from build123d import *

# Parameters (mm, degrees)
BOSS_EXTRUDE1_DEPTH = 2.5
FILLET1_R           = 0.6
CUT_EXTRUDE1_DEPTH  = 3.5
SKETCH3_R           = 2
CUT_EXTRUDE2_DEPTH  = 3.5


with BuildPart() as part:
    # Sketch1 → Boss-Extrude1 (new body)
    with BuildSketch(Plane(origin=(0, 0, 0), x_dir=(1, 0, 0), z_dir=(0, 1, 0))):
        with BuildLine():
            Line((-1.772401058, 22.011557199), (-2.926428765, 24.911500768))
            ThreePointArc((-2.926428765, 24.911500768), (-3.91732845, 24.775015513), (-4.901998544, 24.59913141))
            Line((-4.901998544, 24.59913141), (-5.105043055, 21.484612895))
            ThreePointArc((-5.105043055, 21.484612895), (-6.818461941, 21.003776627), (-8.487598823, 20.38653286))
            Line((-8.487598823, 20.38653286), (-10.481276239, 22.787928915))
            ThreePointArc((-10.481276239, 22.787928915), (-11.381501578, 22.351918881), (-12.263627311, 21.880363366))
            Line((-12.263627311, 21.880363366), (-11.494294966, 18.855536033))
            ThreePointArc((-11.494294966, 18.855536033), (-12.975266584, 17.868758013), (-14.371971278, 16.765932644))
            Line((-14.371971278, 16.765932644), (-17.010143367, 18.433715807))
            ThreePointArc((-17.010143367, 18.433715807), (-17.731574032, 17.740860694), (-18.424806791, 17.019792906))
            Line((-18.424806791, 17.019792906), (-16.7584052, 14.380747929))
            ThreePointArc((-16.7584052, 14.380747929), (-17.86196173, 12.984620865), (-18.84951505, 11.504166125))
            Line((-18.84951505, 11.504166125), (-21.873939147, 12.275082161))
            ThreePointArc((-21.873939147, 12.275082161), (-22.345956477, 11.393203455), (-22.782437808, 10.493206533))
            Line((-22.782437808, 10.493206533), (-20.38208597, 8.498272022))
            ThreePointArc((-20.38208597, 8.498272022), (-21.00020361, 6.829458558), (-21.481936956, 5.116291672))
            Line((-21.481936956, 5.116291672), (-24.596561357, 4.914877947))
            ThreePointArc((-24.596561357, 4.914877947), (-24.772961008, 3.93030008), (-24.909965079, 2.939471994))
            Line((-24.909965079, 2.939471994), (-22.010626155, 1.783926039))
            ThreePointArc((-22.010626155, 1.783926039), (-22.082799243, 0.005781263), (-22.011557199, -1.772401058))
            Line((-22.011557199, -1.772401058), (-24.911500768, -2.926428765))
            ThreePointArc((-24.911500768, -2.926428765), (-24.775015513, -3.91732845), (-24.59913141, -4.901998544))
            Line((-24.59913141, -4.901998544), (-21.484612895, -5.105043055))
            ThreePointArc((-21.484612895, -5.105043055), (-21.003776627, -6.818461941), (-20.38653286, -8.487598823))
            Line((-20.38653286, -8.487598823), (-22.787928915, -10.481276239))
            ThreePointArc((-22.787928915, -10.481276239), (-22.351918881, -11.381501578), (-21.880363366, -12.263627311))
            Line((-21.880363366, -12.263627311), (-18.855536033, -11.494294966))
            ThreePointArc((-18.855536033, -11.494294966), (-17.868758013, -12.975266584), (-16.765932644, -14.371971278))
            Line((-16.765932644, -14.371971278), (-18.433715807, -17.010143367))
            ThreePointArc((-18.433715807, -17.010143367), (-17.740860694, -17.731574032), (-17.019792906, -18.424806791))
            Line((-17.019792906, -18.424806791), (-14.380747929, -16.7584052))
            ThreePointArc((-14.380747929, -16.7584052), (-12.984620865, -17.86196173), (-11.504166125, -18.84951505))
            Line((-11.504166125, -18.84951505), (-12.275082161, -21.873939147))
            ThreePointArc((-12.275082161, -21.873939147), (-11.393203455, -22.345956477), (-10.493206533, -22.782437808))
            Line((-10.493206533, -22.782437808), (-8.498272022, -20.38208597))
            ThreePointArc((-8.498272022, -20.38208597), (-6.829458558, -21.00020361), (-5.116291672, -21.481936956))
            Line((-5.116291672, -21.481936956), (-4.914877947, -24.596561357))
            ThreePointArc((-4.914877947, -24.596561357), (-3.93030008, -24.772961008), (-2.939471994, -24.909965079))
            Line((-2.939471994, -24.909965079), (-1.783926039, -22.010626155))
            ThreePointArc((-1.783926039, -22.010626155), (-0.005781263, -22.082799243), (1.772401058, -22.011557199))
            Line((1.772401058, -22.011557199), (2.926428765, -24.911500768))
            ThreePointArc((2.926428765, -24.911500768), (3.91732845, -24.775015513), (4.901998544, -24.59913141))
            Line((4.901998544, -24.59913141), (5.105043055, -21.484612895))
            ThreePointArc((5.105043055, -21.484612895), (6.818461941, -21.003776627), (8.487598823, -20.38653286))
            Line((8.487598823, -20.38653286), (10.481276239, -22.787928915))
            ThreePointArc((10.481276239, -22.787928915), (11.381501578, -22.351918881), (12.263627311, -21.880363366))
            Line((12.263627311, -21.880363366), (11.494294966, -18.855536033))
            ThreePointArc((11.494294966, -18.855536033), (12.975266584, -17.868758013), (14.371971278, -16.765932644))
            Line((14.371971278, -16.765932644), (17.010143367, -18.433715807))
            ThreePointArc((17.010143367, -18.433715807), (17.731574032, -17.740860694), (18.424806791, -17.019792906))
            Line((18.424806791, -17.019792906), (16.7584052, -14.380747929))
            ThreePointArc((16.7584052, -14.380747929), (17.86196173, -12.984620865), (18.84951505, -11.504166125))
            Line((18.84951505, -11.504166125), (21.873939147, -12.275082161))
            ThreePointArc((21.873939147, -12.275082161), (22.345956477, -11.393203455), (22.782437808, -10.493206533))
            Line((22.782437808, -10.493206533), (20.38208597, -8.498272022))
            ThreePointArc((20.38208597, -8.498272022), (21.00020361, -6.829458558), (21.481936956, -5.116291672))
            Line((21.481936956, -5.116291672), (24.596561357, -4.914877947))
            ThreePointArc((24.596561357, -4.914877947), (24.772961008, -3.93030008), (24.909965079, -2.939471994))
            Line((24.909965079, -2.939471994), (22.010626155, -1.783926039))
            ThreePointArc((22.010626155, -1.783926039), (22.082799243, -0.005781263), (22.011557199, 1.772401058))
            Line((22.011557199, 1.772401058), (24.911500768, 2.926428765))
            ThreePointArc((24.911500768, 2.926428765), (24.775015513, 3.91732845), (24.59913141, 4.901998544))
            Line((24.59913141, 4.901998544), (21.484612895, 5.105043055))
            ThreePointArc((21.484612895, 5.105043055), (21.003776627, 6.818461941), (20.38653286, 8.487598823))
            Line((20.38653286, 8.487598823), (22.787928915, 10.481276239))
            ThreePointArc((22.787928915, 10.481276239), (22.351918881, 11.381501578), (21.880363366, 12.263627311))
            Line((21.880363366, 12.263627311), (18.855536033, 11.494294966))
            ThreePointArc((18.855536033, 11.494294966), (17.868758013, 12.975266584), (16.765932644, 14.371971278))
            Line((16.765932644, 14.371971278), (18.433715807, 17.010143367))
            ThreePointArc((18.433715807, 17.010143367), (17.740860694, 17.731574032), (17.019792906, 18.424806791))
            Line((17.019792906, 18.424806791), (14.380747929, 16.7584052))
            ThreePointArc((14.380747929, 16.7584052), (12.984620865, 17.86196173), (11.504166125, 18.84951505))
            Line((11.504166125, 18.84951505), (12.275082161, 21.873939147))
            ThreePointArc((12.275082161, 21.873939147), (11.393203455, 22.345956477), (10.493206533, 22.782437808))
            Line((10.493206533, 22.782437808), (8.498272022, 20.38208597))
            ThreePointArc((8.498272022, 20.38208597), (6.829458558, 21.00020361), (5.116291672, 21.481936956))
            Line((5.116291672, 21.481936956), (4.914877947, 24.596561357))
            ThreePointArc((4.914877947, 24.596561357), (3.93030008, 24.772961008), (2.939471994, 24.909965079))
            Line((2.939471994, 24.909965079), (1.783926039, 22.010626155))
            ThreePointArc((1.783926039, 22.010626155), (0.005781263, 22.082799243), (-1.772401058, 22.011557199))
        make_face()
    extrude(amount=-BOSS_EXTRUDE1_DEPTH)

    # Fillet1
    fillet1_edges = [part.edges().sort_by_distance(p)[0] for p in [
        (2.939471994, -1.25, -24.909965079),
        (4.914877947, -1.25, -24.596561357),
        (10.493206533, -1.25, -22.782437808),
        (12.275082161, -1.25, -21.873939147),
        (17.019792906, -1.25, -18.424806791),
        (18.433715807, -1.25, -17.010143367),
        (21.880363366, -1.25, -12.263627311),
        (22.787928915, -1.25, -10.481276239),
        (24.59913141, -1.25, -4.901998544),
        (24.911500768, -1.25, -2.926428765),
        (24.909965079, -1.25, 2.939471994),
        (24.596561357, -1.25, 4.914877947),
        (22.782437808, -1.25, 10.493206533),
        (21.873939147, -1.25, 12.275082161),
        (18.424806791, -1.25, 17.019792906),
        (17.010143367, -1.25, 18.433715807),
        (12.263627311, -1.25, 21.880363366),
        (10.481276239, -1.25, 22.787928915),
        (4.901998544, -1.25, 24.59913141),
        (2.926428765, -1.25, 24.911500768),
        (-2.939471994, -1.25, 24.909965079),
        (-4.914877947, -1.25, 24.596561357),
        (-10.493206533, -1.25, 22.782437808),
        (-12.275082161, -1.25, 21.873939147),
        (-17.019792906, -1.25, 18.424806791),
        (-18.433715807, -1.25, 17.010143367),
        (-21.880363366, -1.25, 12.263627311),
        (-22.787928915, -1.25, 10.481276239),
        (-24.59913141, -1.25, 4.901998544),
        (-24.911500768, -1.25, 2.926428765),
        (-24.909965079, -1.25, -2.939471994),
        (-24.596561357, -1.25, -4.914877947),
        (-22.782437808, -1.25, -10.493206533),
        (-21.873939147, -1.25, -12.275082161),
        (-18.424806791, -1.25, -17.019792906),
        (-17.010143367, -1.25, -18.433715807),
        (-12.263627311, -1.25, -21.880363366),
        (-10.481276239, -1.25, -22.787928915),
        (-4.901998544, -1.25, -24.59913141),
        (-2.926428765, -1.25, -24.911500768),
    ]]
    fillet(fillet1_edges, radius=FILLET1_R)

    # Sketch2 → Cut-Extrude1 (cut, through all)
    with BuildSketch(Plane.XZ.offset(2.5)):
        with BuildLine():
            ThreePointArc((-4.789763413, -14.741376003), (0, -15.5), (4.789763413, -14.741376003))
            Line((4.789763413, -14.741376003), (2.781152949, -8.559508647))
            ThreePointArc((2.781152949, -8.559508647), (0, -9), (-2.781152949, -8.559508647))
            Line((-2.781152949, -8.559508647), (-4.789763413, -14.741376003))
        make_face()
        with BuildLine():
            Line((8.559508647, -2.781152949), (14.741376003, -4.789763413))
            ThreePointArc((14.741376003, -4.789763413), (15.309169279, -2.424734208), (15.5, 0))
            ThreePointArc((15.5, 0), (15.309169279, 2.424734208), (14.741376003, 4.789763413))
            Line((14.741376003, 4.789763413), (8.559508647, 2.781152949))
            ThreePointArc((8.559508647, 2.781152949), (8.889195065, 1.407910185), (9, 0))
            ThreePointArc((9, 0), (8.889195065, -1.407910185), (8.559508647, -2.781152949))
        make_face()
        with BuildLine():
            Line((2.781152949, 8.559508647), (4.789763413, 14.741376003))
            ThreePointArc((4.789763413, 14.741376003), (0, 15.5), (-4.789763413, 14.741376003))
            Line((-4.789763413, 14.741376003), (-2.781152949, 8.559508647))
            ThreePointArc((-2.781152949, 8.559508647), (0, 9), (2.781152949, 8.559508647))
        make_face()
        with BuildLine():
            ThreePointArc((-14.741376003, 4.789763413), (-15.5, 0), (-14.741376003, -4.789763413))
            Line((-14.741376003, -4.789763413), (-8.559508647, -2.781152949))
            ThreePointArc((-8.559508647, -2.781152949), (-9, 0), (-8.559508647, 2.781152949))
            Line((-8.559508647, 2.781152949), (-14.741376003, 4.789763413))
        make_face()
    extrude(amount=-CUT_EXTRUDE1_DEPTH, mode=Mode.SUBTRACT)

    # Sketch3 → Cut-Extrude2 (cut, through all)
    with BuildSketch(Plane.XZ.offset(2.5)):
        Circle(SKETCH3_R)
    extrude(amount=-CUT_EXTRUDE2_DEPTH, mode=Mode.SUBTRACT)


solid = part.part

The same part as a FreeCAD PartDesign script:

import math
import FreeCAD as App
import Part
import Sketcher
Q = App.Units.Quantity


def edges_at(feature, points):
    """Names of the edges that pass closest to the given points."""
    edges = feature.Shape.Edges
    near = lambda p: min(range(len(edges)), key=lambda i: edges[i].distToShape(Part.Vertex(*p))[0])
    return sorted({f"Edge{near(p) + 1}" for p in points})

doc = App.newDocument("Part")
body = doc.addObject("PartDesign::Body", "Body")

# Sketch on XZ plane
sketch1 = body.newObject("Sketcher::SketchObject", "Sketch")
sketch1.AttachmentSupport = (doc.getObject("XZ_Plane"), [""])
sketch1.MapMode = "FlatFace"
sketch1.addGeometry([
    Part.LineSegment(App.Vector(-1.772401, -22.011557, 0), App.Vector(-2.926429, -24.911501, 0)),  # 0
    Part.ArcOfCircle(Part.Circle(App.Vector(0, 0, 0), App.Vector(0, 0, 1), 25.0828), math.radians(-101.27), math.radians(-96.7)),  # 1
    Part.LineSegment(App.Vector(-4.901999, -24.599131, 0), App.Vector(-5.105043, -21.484613, 0)),  # 2
    Part.ArcOfCircle(Part.Circle(App.Vector(0, 0, 0), App.Vector(0, 0, 1), 22.0828), math.radians(-112.603603), math.radians(-103.366397)),  # 3
    Part.LineSegment(App.Vector(-8.487599, -20.386533, 0), App.Vector(-10.481276, -22.787929, 0)),  # 4
    Part.ArcOfCircle(Part.Circle(App.Vector(0, 0, 0), App.Vector(0, 0, 1), 25.0828), math.radians(-119.27), math.radians(-114.7)),  # 5
    Part.LineSegment(App.Vector(-12.263627, -21.880363, 0), App.Vector(-11.494295, -18.855536, 0)),  # 6
    Part.ArcOfCircle(Part.Circle(App.Vector(0, 0, 0), App.Vector(0, 0, 1), 22.0828), math.radians(-130.603603), math.radians(-121.366397)),  # 7
    Part.LineSegment(App.Vector(-14.371971, -16.765933, 0), App.Vector(-17.010143, -18.433716, 0)),  # 8
    Part.ArcOfCircle(Part.Circle(App.Vector(0, 0, 0), App.Vector(0, 0, 1), 25.0828), math.radians(-137.27), math.radians(-132.7)),  # 9
    Part.LineSegment(App.Vector(-18.424807, -17.019793, 0), App.Vector(-16.758405, -14.380748, 0)),  # 10
    Part.ArcOfCircle(Part.Circle(App.Vector(0, 0, 0), App.Vector(0, 0, 1), 22.0828), math.radians(-148.603603), math.radians(-139.366397)),  # 11
    Part.LineSegment(App.Vector(-18.849515, -11.504166, 0), App.Vector(-21.873939, -12.275082, 0)),  # 12
    Part.ArcOfCircle(Part.Circle(App.Vector(0, 0, 0), App.Vector(0, 0, 1), 25.0828), math.radians(-155.27), math.radians(-150.7)),  # 13
    Part.LineSegment(App.Vector(-22.782438, -10.493207, 0), App.Vector(-20.382086, -8.498272, 0)),  # 14
    Part.ArcOfCircle(Part.Circle(App.Vector(0, 0, 0), App.Vector(0, 0, 1), 22.0828), math.radians(-166.603603), math.radians(-157.366397)),  # 15
    Part.LineSegment(App.Vector(-21.481937, -5.116292, 0), App.Vector(-24.596561, -4.914878, 0)),  # 16
    Part.ArcOfCircle(Part.Circle(App.Vector(0, 0, 0), App.Vector(0, 0, 1), 25.0828), math.radians(-173.27), math.radians(-168.7)),  # 17
    Part.LineSegment(App.Vector(-24.909965, -2.939472, 0), App.Vector(-22.010626, -1.783926, 0)),  # 18
    Part.ArcOfCircle(Part.Circle(App.Vector(0, 0, 0), App.Vector(0, 0, 1), 22.0828), math.radians(175.396397), math.radians(184.633603)),  # 19
    Part.LineSegment(App.Vector(-22.011557, 1.772401, 0), App.Vector(-24.911501, 2.926429, 0)),  # 20
    Part.ArcOfCircle(Part.Circle(App.Vector(0, 0, 0), App.Vector(0, 0, 1), 25.0828), math.radians(168.73), math.radians(173.3)),  # 21
    Part.LineSegment(App.Vector(-24.599131, 4.901999, 0), App.Vector(-21.484613, 5.105043, 0)),  # 22
    Part.ArcOfCircle(Part.Circle(App.Vector(0, 0, 0), App.Vector(0, 0, 1), 22.0828), math.radians(157.396397), math.radians(166.633603)),  # 23
    Part.LineSegment(App.Vector(-20.386533, 8.487599, 0), App.Vector(-22.787929, 10.481276, 0)),  # 24
    Part.ArcOfCircle(Part.Circle(App.Vector(0, 0, 0), App.Vector(0, 0, 1), 25.0828), math.radians(150.73), math.radians(155.3)),  # 25
    Part.LineSegment(App.Vector(-21.880363, 12.263627, 0), App.Vector(-18.855536, 11.494295, 0)),  # 26
    Part.ArcOfCircle(Part.Circle(App.Vector(0, 0, 0), App.Vector(0, 0, 1), 22.0828), math.radians(139.396397), math.radians(148.633603)),  # 27
    Part.LineSegment(App.Vector(-16.765933, 14.371971, 0), App.Vector(-18.433716, 17.010143, 0)),  # 28
    Part.ArcOfCircle(Part.Circle(App.Vector(0, 0, 0), App.Vector(0, 0, 1), 25.0828), math.radians(132.73), math.radians(137.3)),  # 29
    Part.LineSegment(App.Vector(-17.019793, 18.424807, 0), App.Vector(-14.380748, 16.758405, 0)),  # 30
    Part.ArcOfCircle(Part.Circle(App.Vector(0, 0, 0), App.Vector(0, 0, 1), 22.0828), math.radians(121.396397), math.radians(130.633603)),  # 31
    Part.LineSegment(App.Vector(-11.504166, 18.849515, 0), App.Vector(-12.275082, 21.873939, 0)),  # 32
    Part.ArcOfCircle(Part.Circle(App.Vector(0, 0, 0), App.Vector(0, 0, 1), 25.0828), math.radians(114.73), math.radians(119.3)),  # 33
    Part.LineSegment(App.Vector(-10.493207, 22.782438, 0), App.Vector(-8.498272, 20.382086, 0)),  # 34
    Part.ArcOfCircle(Part.Circle(App.Vector(0, 0, 0), App.Vector(0, 0, 1), 22.0828), math.radians(103.396397), math.radians(112.633603)),  # 35
    Part.LineSegment(App.Vector(-5.116292, 21.481937, 0), App.Vector(-4.914878, 24.596561, 0)),  # 36
    Part.ArcOfCircle(Part.Circle(App.Vector(0, 0, 0), App.Vector(0, 0, 1), 25.0828), math.radians(96.73), math.radians(101.3)),  # 37
    Part.LineSegment(App.Vector(-2.939472, 24.909965, 0), App.Vector(-1.783926, 22.010626, 0)),  # 38
    Part.ArcOfCircle(Part.Circle(App.Vector(0, 0, 0), App.Vector(0, 0, 1), 22.0828), math.radians(85.396397), math.radians(94.633603)),  # 39
    Part.LineSegment(App.Vector(1.772401, 22.011557, 0), App.Vector(2.926429, 24.911501, 0)),  # 40
    Part.ArcOfCircle(Part.Circle(App.Vector(0, 0, 0), App.Vector(0, 0, 1), 25.0828), math.radians(78.73), math.radians(83.3)),  # 41
    Part.LineSegment(App.Vector(4.901999, 24.599131, 0), App.Vector(5.105043, 21.484613, 0)),  # 42
    Part.ArcOfCircle(Part.Circle(App.Vector(0, 0, 0), App.Vector(0, 0, 1), 22.0828), math.radians(67.396397), math.radians(76.633603)),  # 43
    Part.LineSegment(App.Vector(8.487599, 20.386533, 0), App.Vector(10.481276, 22.787929, 0)),  # 44
    Part.ArcOfCircle(Part.Circle(App.Vector(0, 0, 0), App.Vector(0, 0, 1), 25.0828), math.radians(60.73), math.radians(65.3)),  # 45
    Part.LineSegment(App.Vector(12.263627, 21.880363, 0), App.Vector(11.494295, 18.855536, 0)),  # 46
    Part.ArcOfCircle(Part.Circle(App.Vector(0, 0, 0), App.Vector(0, 0, 1), 22.0828), math.radians(49.396397), math.radians(58.633603)),  # 47
    Part.LineSegment(App.Vector(14.371971, 16.765933, 0), App.Vector(17.010143, 18.433716, 0)),  # 48
    Part.ArcOfCircle(Part.Circle(App.Vector(0, 0, 0), App.Vector(0, 0, 1), 25.0828), math.radians(42.73), math.radians(47.3)),  # 49
    Part.LineSegment(App.Vector(18.424807, 17.019793, 0), App.Vector(16.758405, 14.380748, 0)),  # 50
    Part.ArcOfCircle(Part.Circle(App.Vector(0, 0, 0), App.Vector(0, 0, 1), 22.0828), math.radians(31.396397), math.radians(40.633603)),  # 51
    Part.LineSegment(App.Vector(18.849515, 11.504166, 0), App.Vector(21.873939, 12.275082, 0)),  # 52
    Part.ArcOfCircle(Part.Circle(App.Vector(0, 0, 0), App.Vector(0, 0, 1), 25.0828), math.radians(24.73), math.radians(29.3)),  # 53
    Part.LineSegment(App.Vector(22.782438, 10.493207, 0), App.Vector(20.382086, 8.498272, 0)),  # 54
    Part.ArcOfCircle(Part.Circle(App.Vector(0, 0, 0), App.Vector(0, 0, 1), 22.0828), math.radians(13.396397), math.radians(22.633603)),  # 55
    Part.LineSegment(App.Vector(21.481937, 5.116292, 0), App.Vector(24.596561, 4.914878, 0)),  # 56
    Part.ArcOfCircle(Part.Circle(App.Vector(0, 0, 0), App.Vector(0, 0, 1), 25.0828), math.radians(6.73), math.radians(11.3)),  # 57
    Part.LineSegment(App.Vector(24.909965, 2.939472, 0), App.Vector(22.010626, 1.783926, 0)),  # 58
    Part.ArcOfCircle(Part.Circle(App.Vector(0, 0, 0), App.Vector(0, 0, 1), 22.0828), math.radians(-4.603603), math.radians(4.633603)),  # 59
    Part.LineSegment(App.Vector(22.011557, -1.772401, 0), App.Vector(24.911501, -2.926429, 0)),  # 60
    Part.ArcOfCircle(Part.Circle(App.Vector(0, 0, 0), App.Vector(0, 0, 1), 25.0828), math.radians(-11.27), math.radians(-6.7)),  # 61
    Part.LineSegment(App.Vector(24.599131, -4.901999, 0), App.Vector(21.484613, -5.105043, 0)),  # 62
    Part.ArcOfCircle(Part.Circle(App.Vector(0, 0, 0), App.Vector(0, 0, 1), 22.0828), math.radians(-22.603603), math.radians(-13.366397)),  # 63
    Part.LineSegment(App.Vector(20.386533, -8.487599, 0), App.Vector(22.787929, -10.481276, 0)),  # 64
    Part.ArcOfCircle(Part.Circle(App.Vector(0, 0, 0), App.Vector(0, 0, 1), 25.0828), math.radians(-29.27), math.radians(-24.7)),  # 65
    Part.LineSegment(App.Vector(21.880363, -12.263627, 0), App.Vector(18.855536, -11.494295, 0)),  # 66
    Part.ArcOfCircle(Part.Circle(App.Vector(0, 0, 0), App.Vector(0, 0, 1), 22.0828), math.radians(-40.603603), math.radians(-31.366397)),  # 67
    Part.LineSegment(App.Vector(16.765933, -14.371971, 0), App.Vector(18.433716, -17.010143, 0)),  # 68
    Part.ArcOfCircle(Part.Circle(App.Vector(0, 0, 0), App.Vector(0, 0, 1), 25.0828), math.radians(-47.27), math.radians(-42.7)),  # 69
    Part.LineSegment(App.Vector(17.019793, -18.424807, 0), App.Vector(14.380748, -16.758405, 0)),  # 70
    Part.ArcOfCircle(Part.Circle(App.Vector(0, 0, 0), App.Vector(0, 0, 1), 22.0828), math.radians(-58.603603), math.radians(-49.366397)),  # 71
    Part.LineSegment(App.Vector(11.504166, -18.849515, 0), App.Vector(12.275082, -21.873939, 0)),  # 72
    Part.ArcOfCircle(Part.Circle(App.Vector(0, 0, 0), App.Vector(0, 0, 1), 25.0828), math.radians(-65.27), math.radians(-60.7)),  # 73
    Part.LineSegment(App.Vector(10.493207, -22.782438, 0), App.Vector(8.498272, -20.382086, 0)),  # 74
    Part.ArcOfCircle(Part.Circle(App.Vector(0, 0, 0), App.Vector(0, 0, 1), 22.0828), math.radians(-76.603603), math.radians(-67.366397)),  # 75
    Part.LineSegment(App.Vector(5.116292, -21.481937, 0), App.Vector(4.914878, -24.596561, 0)),  # 76
    Part.ArcOfCircle(Part.Circle(App.Vector(0, 0, 0), App.Vector(0, 0, 1), 25.0828), math.radians(-83.27), math.radians(-78.7)),  # 77
    Part.LineSegment(App.Vector(2.939472, -24.909965, 0), App.Vector(1.783926, -22.010626, 0)),  # 78
    Part.ArcOfCircle(Part.Circle(App.Vector(0, 0, 0), App.Vector(0, 0, 1), 22.0828), math.radians(-94.603603), math.radians(-85.366397)),  # 79
], False)
sketch1.addConstraint([
    Sketcher.Constraint("Coincident", 0, 2, 1, 2),
    Sketcher.Constraint("Coincident", 1, 1, 2, 1),
    Sketcher.Constraint("Coincident", 2, 2, 3, 2),
    Sketcher.Constraint("Coincident", 3, 1, 4, 1),
    Sketcher.Constraint("Coincident", 4, 2, 5, 2),
    Sketcher.Constraint("Coincident", 5, 1, 6, 1),
    Sketcher.Constraint("Coincident", 6, 2, 7, 2),
    Sketcher.Constraint("Coincident", 7, 1, 8, 1),
    Sketcher.Constraint("Coincident", 8, 2, 9, 2),
    Sketcher.Constraint("Coincident", 9, 1, 10, 1),
    Sketcher.Constraint("Coincident", 10, 2, 11, 2),
    Sketcher.Constraint("Coincident", 11, 1, 12, 1),
    Sketcher.Constraint("Coincident", 12, 2, 13, 2),
    Sketcher.Constraint("Coincident", 13, 1, 14, 1),
    Sketcher.Constraint("Coincident", 14, 2, 15, 2),
    Sketcher.Constraint("Coincident", 15, 1, 16, 1),
    Sketcher.Constraint("Coincident", 16, 2, 17, 2),
    Sketcher.Constraint("Coincident", 17, 1, 18, 1),
    Sketcher.Constraint("Coincident", 18, 2, 19, 2),
    Sketcher.Constraint("Coincident", 19, 1, 20, 1),
    Sketcher.Constraint("Coincident", 20, 2, 21, 2),
    Sketcher.Constraint("Coincident", 21, 1, 22, 1),
    Sketcher.Constraint("Coincident", 22, 2, 23, 2),
    Sketcher.Constraint("Coincident", 23, 1, 24, 1),
    Sketcher.Constraint("Coincident", 24, 2, 25, 2),
    Sketcher.Constraint("Coincident", 25, 1, 26, 1),
    Sketcher.Constraint("Coincident", 26, 2, 27, 2),
    Sketcher.Constraint("Coincident", 27, 1, 28, 1),
    Sketcher.Constraint("Coincident", 28, 2, 29, 2),
    Sketcher.Constraint("Coincident", 29, 1, 30, 1),
    Sketcher.Constraint("Coincident", 30, 2, 31, 2),
    Sketcher.Constraint("Coincident", 31, 1, 32, 1),
    Sketcher.Constraint("Coincident", 32, 2, 33, 2),
    Sketcher.Constraint("Coincident", 33, 1, 34, 1),
    Sketcher.Constraint("Coincident", 34, 2, 35, 2),
    Sketcher.Constraint("Coincident", 35, 1, 36, 1),
    Sketcher.Constraint("Coincident", 36, 2, 37, 2),
    Sketcher.Constraint("Coincident", 37, 1, 38, 1),
    Sketcher.Constraint("Coincident", 38, 2, 39, 2),
    Sketcher.Constraint("Coincident", 39, 1, 40, 1),
    Sketcher.Constraint("Coincident", 40, 2, 41, 2),
    Sketcher.Constraint("Coincident", 41, 1, 42, 1),
    Sketcher.Constraint("Coincident", 42, 2, 43, 2),
    Sketcher.Constraint("Coincident", 43, 1, 44, 1),
    Sketcher.Constraint("Coincident", 44, 2, 45, 2),
    Sketcher.Constraint("Coincident", 45, 1, 46, 1),
    Sketcher.Constraint("Coincident", 46, 2, 47, 2),
    Sketcher.Constraint("Coincident", 47, 1, 48, 1),
    Sketcher.Constraint("Coincident", 48, 2, 49, 2),
    Sketcher.Constraint("Coincident", 49, 1, 50, 1),
    Sketcher.Constraint("Coincident", 50, 2, 51, 2),
    Sketcher.Constraint("Coincident", 51, 1, 52, 1),
    Sketcher.Constraint("Coincident", 52, 2, 53, 2),
    Sketcher.Constraint("Coincident", 53, 1, 54, 1),
    Sketcher.Constraint("Coincident", 54, 2, 55, 2),
    Sketcher.Constraint("Coincident", 55, 1, 56, 1),
    Sketcher.Constraint("Coincident", 56, 2, 57, 2),
    Sketcher.Constraint("Coincident", 57, 1, 58, 1),
    Sketcher.Constraint("Coincident", 58, 2, 59, 2),
    Sketcher.Constraint("Coincident", 59, 1, 60, 1),
    Sketcher.Constraint("Coincident", 60, 2, 61, 2),
    Sketcher.Constraint("Coincident", 61, 1, 62, 1),
    Sketcher.Constraint("Coincident", 62, 2, 63, 2),
    Sketcher.Constraint("Coincident", 63, 1, 64, 1),
    Sketcher.Constraint("Coincident", 64, 2, 65, 2),
    Sketcher.Constraint("Coincident", 65, 1, 66, 1),
    Sketcher.Constraint("Coincident", 66, 2, 67, 2),
    Sketcher.Constraint("Coincident", 67, 1, 68, 1),
    Sketcher.Constraint("Coincident", 68, 2, 69, 2),
    Sketcher.Constraint("Coincident", 69, 1, 70, 1),
    Sketcher.Constraint("Coincident", 70, 2, 71, 2),
    Sketcher.Constraint("Coincident", 71, 1, 72, 1),
    Sketcher.Constraint("Coincident", 72, 2, 73, 2),
    Sketcher.Constraint("Coincident", 73, 1, 74, 1),
    Sketcher.Constraint("Coincident", 74, 2, 75, 2),
    Sketcher.Constraint("Coincident", 75, 1, 76, 1),
    Sketcher.Constraint("Coincident", 76, 2, 77, 2),
    Sketcher.Constraint("Coincident", 77, 1, 78, 1),
    Sketcher.Constraint("Coincident", 78, 2, 79, 2),
    Sketcher.Constraint("Coincident", 79, 1, 0, 1),
    Sketcher.Constraint("Coincident", 1, 3, -1, 1),
    Sketcher.Constraint("Coincident", 3, 3, -1, 1),
    Sketcher.Constraint("Coincident", 5, 3, -1, 1),
    Sketcher.Constraint("Coincident", 7, 3, -1, 1),
    Sketcher.Constraint("Coincident", 9, 3, -1, 1),
    Sketcher.Constraint("Coincident", 11, 3, -1, 1),
    Sketcher.Constraint("Coincident", 13, 3, -1, 1),
    Sketcher.Constraint("Coincident", 15, 3, -1, 1),
    Sketcher.Constraint("Coincident", 17, 3, -1, 1),
    Sketcher.Constraint("Coincident", 19, 3, -1, 1),
    Sketcher.Constraint("Coincident", 21, 3, -1, 1),
    Sketcher.Constraint("Coincident", 23, 3, -1, 1),
    Sketcher.Constraint("Coincident", 25, 3, -1, 1),
    Sketcher.Constraint("Coincident", 27, 3, -1, 1),
    Sketcher.Constraint("Coincident", 29, 3, -1, 1),
    Sketcher.Constraint("Coincident", 31, 3, -1, 1),
    Sketcher.Constraint("Coincident", 33, 3, -1, 1),
    Sketcher.Constraint("Coincident", 35, 3, -1, 1),
    Sketcher.Constraint("Coincident", 37, 3, -1, 1),
    Sketcher.Constraint("Coincident", 39, 3, -1, 1),
    Sketcher.Constraint("Coincident", 41, 3, -1, 1),
    Sketcher.Constraint("Coincident", 43, 3, -1, 1),
    Sketcher.Constraint("Coincident", 45, 3, -1, 1),
    Sketcher.Constraint("Coincident", 47, 3, -1, 1),
    Sketcher.Constraint("Coincident", 49, 3, -1, 1),
    Sketcher.Constraint("Coincident", 51, 3, -1, 1),
    Sketcher.Constraint("Coincident", 53, 3, -1, 1),
    Sketcher.Constraint("Coincident", 55, 3, -1, 1),
    Sketcher.Constraint("Coincident", 57, 3, -1, 1),
    Sketcher.Constraint("Coincident", 59, 3, -1, 1),
    Sketcher.Constraint("Coincident", 61, 3, -1, 1),
    Sketcher.Constraint("Coincident", 63, 3, -1, 1),
    Sketcher.Constraint("Coincident", 65, 3, -1, 1),
    Sketcher.Constraint("Coincident", 67, 3, -1, 1),
    Sketcher.Constraint("Coincident", 69, 3, -1, 1),
    Sketcher.Constraint("Coincident", 71, 3, -1, 1),
    Sketcher.Constraint("Coincident", 73, 3, -1, 1),
    Sketcher.Constraint("Coincident", 75, 3, -1, 1),
    Sketcher.Constraint("Coincident", 77, 3, -1, 1),
    Sketcher.Constraint("Coincident", 79, 3, -1, 1),
    Sketcher.Constraint("Equal", 1, 5),
    Sketcher.Constraint("Equal", 3, 7),
    Sketcher.Constraint("Equal", 5, 9),
    Sketcher.Constraint("Equal", 7, 11),
    Sketcher.Constraint("Equal", 9, 13),
    Sketcher.Constraint("Equal", 11, 15),
    Sketcher.Constraint("Equal", 13, 17),
    Sketcher.Constraint("Equal", 15, 19),
    Sketcher.Constraint("Equal", 17, 21),
    Sketcher.Constraint("Equal", 19, 23),
    Sketcher.Constraint("Equal", 21, 25),
    Sketcher.Constraint("Equal", 23, 27),
    Sketcher.Constraint("Equal", 25, 29),
    Sketcher.Constraint("Equal", 27, 31),
    Sketcher.Constraint("Equal", 29, 33),
    Sketcher.Constraint("Equal", 31, 35),
    Sketcher.Constraint("Equal", 33, 37),
    Sketcher.Constraint("Equal", 35, 39),
    Sketcher.Constraint("Equal", 37, 41),
    Sketcher.Constraint("Equal", 39, 43),
    Sketcher.Constraint("Equal", 41, 45),
    Sketcher.Constraint("Equal", 43, 47),
    Sketcher.Constraint("Equal", 45, 49),
    Sketcher.Constraint("Equal", 47, 51),
    Sketcher.Constraint("Equal", 49, 53),
    Sketcher.Constraint("Equal", 51, 55),
    Sketcher.Constraint("Equal", 53, 57),
    Sketcher.Constraint("Equal", 55, 59),
    Sketcher.Constraint("Equal", 57, 61),
    Sketcher.Constraint("Equal", 59, 63),
    Sketcher.Constraint("Equal", 61, 65),
    Sketcher.Constraint("Equal", 63, 67),
    Sketcher.Constraint("Equal", 65, 69),
    Sketcher.Constraint("Equal", 67, 71),
    Sketcher.Constraint("Equal", 69, 73),
    Sketcher.Constraint("Equal", 71, 75),
    Sketcher.Constraint("Equal", 73, 77),
    Sketcher.Constraint("Equal", 75, 79),
    Sketcher.Constraint("Perpendicular", 0, 20),
    Sketcher.Constraint("Perpendicular", 2, 22),
    Sketcher.Constraint("Perpendicular", 4, 24),
    Sketcher.Constraint("Perpendicular", 6, 26),
    Sketcher.Constraint("Perpendicular", 8, 28),
    Sketcher.Constraint("Perpendicular", 10, 30),
    Sketcher.Constraint("Perpendicular", 12, 32),
    Sketcher.Constraint("Perpendicular", 14, 34),
    Sketcher.Constraint("Perpendicular", 16, 36),
    Sketcher.Constraint("Perpendicular", 18, 38),
    Sketcher.Constraint("Perpendicular", 20, 40),
    Sketcher.Constraint("Perpendicular", 22, 42),
    Sketcher.Constraint("Perpendicular", 24, 44),
    Sketcher.Constraint("Perpendicular", 26, 46),
    Sketcher.Constraint("Perpendicular", 28, 48),
    Sketcher.Constraint("Perpendicular", 30, 50),
    Sketcher.Constraint("Perpendicular", 32, 52),
    Sketcher.Constraint("Perpendicular", 34, 54),
    Sketcher.Constraint("Perpendicular", 36, 56),
    Sketcher.Constraint("Perpendicular", 38, 58),
    Sketcher.Constraint("Perpendicular", 40, 60),
    Sketcher.Constraint("Perpendicular", 42, 62),
    Sketcher.Constraint("Perpendicular", 44, 64),
    Sketcher.Constraint("Perpendicular", 46, 66),
    Sketcher.Constraint("Perpendicular", 48, 68),
    Sketcher.Constraint("Perpendicular", 50, 70),
    Sketcher.Constraint("Perpendicular", 52, 72),
    Sketcher.Constraint("Perpendicular", 54, 74),
    Sketcher.Constraint("Perpendicular", 56, 76),
    Sketcher.Constraint("Perpendicular", 58, 78),
    Sketcher.Constraint("Equal", 0, 2),
    Sketcher.Constraint("Equal", 2, 4),
    Sketcher.Constraint("Equal", 4, 6),
    Sketcher.Constraint("Equal", 6, 8),
    Sketcher.Constraint("Equal", 8, 10),
    Sketcher.Constraint("Equal", 10, 12),
    Sketcher.Constraint("Equal", 12, 14),
    Sketcher.Constraint("Equal", 14, 16),
    Sketcher.Constraint("Equal", 16, 18),
    Sketcher.Constraint("Equal", 18, 20),
    Sketcher.Constraint("Equal", 20, 22),
    Sketcher.Constraint("Equal", 22, 24),
    Sketcher.Constraint("Equal", 24, 26),
    Sketcher.Constraint("Equal", 26, 28),
    Sketcher.Constraint("Equal", 28, 30),
    Sketcher.Constraint("Equal", 30, 32),
    Sketcher.Constraint("Equal", 32, 34),
    Sketcher.Constraint("Equal", 34, 36),
    Sketcher.Constraint("Equal", 36, 38),
    Sketcher.Constraint("Equal", 38, 40),
    Sketcher.Constraint("Equal", 40, 42),
    Sketcher.Constraint("Equal", 42, 44),
    Sketcher.Constraint("Equal", 44, 46),
    Sketcher.Constraint("Equal", 46, 48),
    Sketcher.Constraint("Equal", 48, 50),
    Sketcher.Constraint("Equal", 50, 52),
    Sketcher.Constraint("Equal", 52, 54),
    Sketcher.Constraint("Equal", 54, 56),
    Sketcher.Constraint("Equal", 56, 58),
    Sketcher.Constraint("Equal", 58, 60),
    Sketcher.Constraint("Equal", 60, 62),
    Sketcher.Constraint("Equal", 62, 64),
    Sketcher.Constraint("Equal", 64, 66),
    Sketcher.Constraint("Equal", 66, 68),
    Sketcher.Constraint("Equal", 68, 70),
    Sketcher.Constraint("Equal", 70, 72),
    Sketcher.Constraint("Equal", 72, 74),
    Sketcher.Constraint("Equal", 74, 76),
    Sketcher.Constraint("Equal", 76, 78),
    Sketcher.Constraint("Angle", 0, Q("-111.7 deg")),
    Sketcher.Constraint("Angle", 4, Q("-129.7 deg")),
    Sketcher.Constraint("Angle", 8, Q("-147.7 deg")),
    Sketcher.Constraint("Angle", 12, Q("-165.7 deg")),
    Sketcher.Constraint("Angle", 16, Q("176.3 deg")),
    Sketcher.Constraint("Angle", 2, Q("93.73 deg")),
    Sketcher.Constraint("Angle", 6, Q("75.73 deg")),
    Sketcher.Constraint("Angle", 10, Q("57.73 deg")),
    Sketcher.Constraint("Angle", 14, Q("39.73 deg")),
    Sketcher.Constraint("Angle", 18, Q("21.73 deg")),
    Sketcher.Constraint("Radius", 1, Q("25.0828 mm")),
    Sketcher.Constraint("Radius", 3, Q("22.0828 mm")),
    Sketcher.Constraint("DistanceX", 1, 1, -1, 1, Q("4.901999 mm")),
])
pad1 = body.newObject("PartDesign::Pad", "Pad")
pad1.Profile = sketch1
pad1.Length = 2.5
doc.recompute()

fillet = body.newObject("PartDesign::Fillet", "Fillet")
fillet.Base = (pad1, edges_at(pad1, [
    (2.939, -1.25, -24.91),
    (4.915, -1.25, -24.597),
    (10.493, -1.25, -22.782),
    (12.275, -1.25, -21.874),
    (17.02, -1.25, -18.425),
    (18.434, -1.25, -17.01),
    (21.88, -1.25, -12.264),
    (22.788, -1.25, -10.481),
    (24.599, -1.25, -4.902),
    (24.912, -1.25, -2.926),
    (24.91, -1.25, 2.939),
    (24.597, -1.25, 4.915),
    (22.782, -1.25, 10.493),
    (21.874, -1.25, 12.275),
    (18.425, -1.25, 17.02),
    (17.01, -1.25, 18.434),
    (12.264, -1.25, 21.88),
    (10.481, -1.25, 22.788),
    (4.902, -1.25, 24.599),
    (2.926, -1.25, 24.912),
    (-2.939, -1.25, 24.91),
    (-4.915, -1.25, 24.597),
    (-10.493, -1.25, 22.782),
    (-12.275, -1.25, 21.874),
    (-17.02, -1.25, 18.425),
    (-18.434, -1.25, 17.01),
    (-21.88, -1.25, 12.264),
    (-22.788, -1.25, 10.481),
    (-24.599, -1.25, 4.902),
    (-24.912, -1.25, 2.926),
    (-24.91, -1.25, -2.939),
    (-24.597, -1.25, -4.915),
    (-22.782, -1.25, -10.493),
    (-21.874, -1.25, -12.275),
    (-18.425, -1.25, -17.02),
    (-17.01, -1.25, -18.434),
    (-12.264, -1.25, -21.88),
    (-10.481, -1.25, -22.788),
    (-4.902, -1.25, -24.599),
    (-2.926, -1.25, -24.912),
]))
fillet.Radius = 0.6

# Sketch on XZ plane
sketch2 = body.newObject("Sketcher::SketchObject", "Sketch001")
sketch2.AttachmentSupport = (doc.getObject("XZ_Plane"), [""])
sketch2.MapMode = "FlatFace"
sketch2.AttachmentOffset = App.Placement(App.Vector(0, 0, 2.5), App.Rotation())
sketch2.addGeometry([
    Part.ArcOfCircle(Part.Circle(App.Vector(0, 0, 0), App.Vector(0, 0, 1), 15.5), math.radians(-108), math.radians(-72)),  # 0
    Part.LineSegment(App.Vector(4.789763, -14.741376, 0), App.Vector(2.781153, -8.559509, 0)),  # 1
    Part.ArcOfCircle(Part.Circle(App.Vector(0, 0, 0), App.Vector(0, 0, 1), 9), math.radians(-108), math.radians(-72)),  # 2
    Part.LineSegment(App.Vector(-2.781153, -8.559509, 0), App.Vector(-4.789763, -14.741376, 0)),  # 3
    Part.LineSegment(App.Vector(8.559509, -2.781153, 0), App.Vector(14.741376, -4.789763, 0)),  # 4
    Part.ArcOfCircle(Part.Circle(App.Vector(0, 0, 0), App.Vector(0, 0, 1), 15.5), math.radians(-18), math.radians(0)),  # 5
    Part.ArcOfCircle(Part.Circle(App.Vector(0, 0, 0), App.Vector(0, 0, 1), 15.5), math.radians(0), math.radians(18)),  # 6
    Part.LineSegment(App.Vector(14.741376, 4.789763, 0), App.Vector(8.559509, 2.781153, 0)),  # 7
    Part.ArcOfCircle(Part.Circle(App.Vector(0, 0, 0), App.Vector(0, 0, 1), 9), math.radians(0), math.radians(18)),  # 8
    Part.ArcOfCircle(Part.Circle(App.Vector(0, 0, 0), App.Vector(0, 0, 1), 9), math.radians(-18), math.radians(0)),  # 9
    Part.LineSegment(App.Vector(2.781153, 8.559509, 0), App.Vector(4.789763, 14.741376, 0)),  # 10
    Part.ArcOfCircle(Part.Circle(App.Vector(0, 0, 0), App.Vector(0, 0, 1), 15.5), math.radians(72), math.radians(108)),  # 11
    Part.LineSegment(App.Vector(-4.789763, 14.741376, 0), App.Vector(-2.781153, 8.559509, 0)),  # 12
    Part.ArcOfCircle(Part.Circle(App.Vector(0, 0, 0), App.Vector(0, 0, 1), 9), math.radians(72), math.radians(108)),  # 13
    Part.ArcOfCircle(Part.Circle(App.Vector(0, 0, 0), App.Vector(0, 0, 1), 15.5), math.radians(162), math.radians(198)),  # 14
    Part.LineSegment(App.Vector(-14.741376, -4.789763, 0), App.Vector(-8.559509, -2.781153, 0)),  # 15
    Part.ArcOfCircle(Part.Circle(App.Vector(0, 0, 0), App.Vector(0, 0, 1), 9), math.radians(162), math.radians(198)),  # 16
    Part.LineSegment(App.Vector(-8.559509, 2.781153, 0), App.Vector(-14.741376, 4.789763, 0)),  # 17
], False)
sketch2.addConstraint([
    Sketcher.Constraint("Coincident", 0, 2, 1, 1),
    Sketcher.Constraint("Coincident", 1, 2, 2, 2),
    Sketcher.Constraint("Coincident", 2, 1, 3, 1),
    Sketcher.Constraint("Coincident", 3, 2, 0, 1),
    Sketcher.Constraint("Coincident", 4, 2, 5, 1),
    Sketcher.Constraint("Tangent", 5, 2, 6, 1),
    Sketcher.Constraint("Coincident", 6, 2, 7, 1),
    Sketcher.Constraint("Coincident", 7, 2, 8, 2),
    Sketcher.Constraint("Tangent", 8, 1, 9, 2),
    Sketcher.Constraint("Coincident", 9, 1, 4, 1),
    Sketcher.Constraint("Coincident", 10, 2, 11, 1),
    Sketcher.Constraint("Coincident", 11, 2, 12, 1),
    Sketcher.Constraint("Coincident", 12, 2, 13, 2),
    Sketcher.Constraint("Coincident", 13, 1, 10, 1),
    Sketcher.Constraint("Coincident", 14, 2, 15, 1),
    Sketcher.Constraint("Coincident", 15, 2, 16, 2),
    Sketcher.Constraint("Coincident", 16, 1, 17, 1),
    Sketcher.Constraint("Coincident", 17, 2, 14, 1),
    Sketcher.Constraint("Coincident", 0, 3, -1, 1),
    Sketcher.Constraint("Coincident", 2, 3, -1, 1),
    Sketcher.Constraint("Coincident", 5, 3, -1, 1),
    Sketcher.Constraint("Coincident", 8, 3, -1, 1),
    Sketcher.Constraint("Coincident", 11, 3, -1, 1),
    Sketcher.Constraint("Coincident", 13, 3, -1, 1),
    Sketcher.Constraint("Coincident", 14, 3, -1, 1),
    Sketcher.Constraint("Coincident", 16, 3, -1, 1),
    Sketcher.Constraint("Equal", 0, 5),
    Sketcher.Constraint("Equal", 5, 6),
    Sketcher.Constraint("Equal", 2, 8),
    Sketcher.Constraint("Equal", 8, 9),
    Sketcher.Constraint("Equal", 6, 11),
    Sketcher.Constraint("Equal", 9, 13),
    Sketcher.Constraint("Equal", 11, 14),
    Sketcher.Constraint("Equal", 13, 16),
    Sketcher.Constraint("PointOnObject", 5, 2, -1),
    Sketcher.Constraint("PointOnObject", 8, 1, -1),
    Sketcher.Constraint("Perpendicular", 3, 4),
    Sketcher.Constraint("Perpendicular", 1, 7),
    Sketcher.Constraint("Perpendicular", 4, 10),
    Sketcher.Constraint("Perpendicular", 7, 12),
    Sketcher.Constraint("Perpendicular", 12, 15),
    Sketcher.Constraint("Perpendicular", 10, 17),
    Sketcher.Constraint("Horizontal", 1, 2, 2, 1),
    Sketcher.Constraint("Horizontal", 0, 2, 3, 2),
    Sketcher.Constraint("Horizontal", 10, 2, 11, 2),
    Sketcher.Constraint("Horizontal", 4, 2, 14, 2),
    Sketcher.Constraint("Horizontal", 7, 2, 16, 1),
    Sketcher.Constraint("Vertical", 4, 2, 6, 2),
    Sketcher.Constraint("Vertical", 0, 2, 10, 2),
    Sketcher.Constraint("Radius", 2, Q("9 mm")),
    Sketcher.Constraint("Radius", 0, Q("15.5 mm")),
    Sketcher.Constraint("Angle", 1, Q("108 deg")),
    Sketcher.Constraint("DistanceY", 1, 2, -1, 1, Q("8.559509 mm")),
    Sketcher.Constraint("DistanceX", -1, 1, 7, 2, Q("8.559509 mm")),
])
pocket1 = body.newObject("PartDesign::Pocket", "Pocket")
pocket1.Profile = sketch2
pocket1.Type = "ThroughAll"

# Sketch on XZ plane
sketch3 = body.newObject("Sketcher::SketchObject", "Sketch002")
sketch3.AttachmentSupport = (doc.getObject("XZ_Plane"), [""])
sketch3.MapMode = "FlatFace"
sketch3.AttachmentOffset = App.Placement(App.Vector(0, 0, 2.5), App.Rotation())
sketch3.addGeometry(Part.Circle(App.Vector(0, 0, 0), App.Vector(0, 0, 1), 2), False)
sketch3.addConstraint([
    Sketcher.Constraint("Coincident", 0, 3, -1, 1),
    Sketcher.Constraint("Diameter", 0, Q("4 mm")),
])
pocket2 = body.newObject("PartDesign::Pocket", "Pocket001")
pocket2.Profile = sketch3
pocket2.Type = "ThroughAll"

doc.recompute()
